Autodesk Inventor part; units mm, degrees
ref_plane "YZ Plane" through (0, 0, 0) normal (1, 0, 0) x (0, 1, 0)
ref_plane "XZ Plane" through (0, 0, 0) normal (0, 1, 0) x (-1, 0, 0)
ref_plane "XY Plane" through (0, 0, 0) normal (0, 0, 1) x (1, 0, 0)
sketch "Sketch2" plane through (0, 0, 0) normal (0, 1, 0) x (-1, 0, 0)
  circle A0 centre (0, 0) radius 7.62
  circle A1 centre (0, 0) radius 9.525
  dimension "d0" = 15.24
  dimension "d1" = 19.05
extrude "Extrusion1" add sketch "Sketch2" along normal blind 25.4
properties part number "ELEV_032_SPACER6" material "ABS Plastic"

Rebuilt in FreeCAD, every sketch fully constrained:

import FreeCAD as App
import Part
import Sketcher
Q = App.Units.Quantity

doc = App.newDocument("Part")
params = doc.addObject("Spreadsheet::Sheet", "Params")
for row, (alias, value) in enumerate([
    ("sketch1_diameter", "0.6 in"),
    ("sketch1_diameter2", "0.75 in"),
    ("pad1_length", "1 in"),
], start=1):
    params.set(f"A{row}", alias)
    params.set(f"B{row}", "=" + value)
    params.setAlias(f"B{row}", alias)

body = doc.addObject("PartDesign::Body", "Body")

# Sketch on XZ plane
sketch1 = doc.addObject("Sketcher::SketchObject", "Sketch")
body.addObject(sketch1)
sketch1.AttachmentSupport = (doc.XZ_Plane, [""])
sketch1.MapMode = "FlatFace"
sketch1.addGeometry([
    Part.Circle(App.Vector(0, 0, 0), App.Vector(0, 0, 1), 10),
    Part.Circle(App.Vector(0, 0, 0), App.Vector(0, 0, 1), 8),
], False)
sketch1.addConstraint([
    Sketcher.Constraint("Coincident", 0, 3, -1, 1),
    Sketcher.Constraint("Coincident", 1, 3, -1, 1),
    Sketcher.Constraint("Diameter", 1, Q("0.6 in")),
    Sketcher.Constraint("Diameter", 0, Q("0.75 in")),
])
sketch1.setExpression("Constraints[2]", "Params.sketch1_diameter")
sketch1.setExpression("Constraints[3]", "Params.sketch1_diameter2")
pad1 = doc.addObject("PartDesign::Pad", "Pad")
body.addObject(pad1)
pad1.Profile = sketch1
pad1.setExpression("Length", "Params.pad1_length")
pad1.Reversed = True

doc.recompute()
